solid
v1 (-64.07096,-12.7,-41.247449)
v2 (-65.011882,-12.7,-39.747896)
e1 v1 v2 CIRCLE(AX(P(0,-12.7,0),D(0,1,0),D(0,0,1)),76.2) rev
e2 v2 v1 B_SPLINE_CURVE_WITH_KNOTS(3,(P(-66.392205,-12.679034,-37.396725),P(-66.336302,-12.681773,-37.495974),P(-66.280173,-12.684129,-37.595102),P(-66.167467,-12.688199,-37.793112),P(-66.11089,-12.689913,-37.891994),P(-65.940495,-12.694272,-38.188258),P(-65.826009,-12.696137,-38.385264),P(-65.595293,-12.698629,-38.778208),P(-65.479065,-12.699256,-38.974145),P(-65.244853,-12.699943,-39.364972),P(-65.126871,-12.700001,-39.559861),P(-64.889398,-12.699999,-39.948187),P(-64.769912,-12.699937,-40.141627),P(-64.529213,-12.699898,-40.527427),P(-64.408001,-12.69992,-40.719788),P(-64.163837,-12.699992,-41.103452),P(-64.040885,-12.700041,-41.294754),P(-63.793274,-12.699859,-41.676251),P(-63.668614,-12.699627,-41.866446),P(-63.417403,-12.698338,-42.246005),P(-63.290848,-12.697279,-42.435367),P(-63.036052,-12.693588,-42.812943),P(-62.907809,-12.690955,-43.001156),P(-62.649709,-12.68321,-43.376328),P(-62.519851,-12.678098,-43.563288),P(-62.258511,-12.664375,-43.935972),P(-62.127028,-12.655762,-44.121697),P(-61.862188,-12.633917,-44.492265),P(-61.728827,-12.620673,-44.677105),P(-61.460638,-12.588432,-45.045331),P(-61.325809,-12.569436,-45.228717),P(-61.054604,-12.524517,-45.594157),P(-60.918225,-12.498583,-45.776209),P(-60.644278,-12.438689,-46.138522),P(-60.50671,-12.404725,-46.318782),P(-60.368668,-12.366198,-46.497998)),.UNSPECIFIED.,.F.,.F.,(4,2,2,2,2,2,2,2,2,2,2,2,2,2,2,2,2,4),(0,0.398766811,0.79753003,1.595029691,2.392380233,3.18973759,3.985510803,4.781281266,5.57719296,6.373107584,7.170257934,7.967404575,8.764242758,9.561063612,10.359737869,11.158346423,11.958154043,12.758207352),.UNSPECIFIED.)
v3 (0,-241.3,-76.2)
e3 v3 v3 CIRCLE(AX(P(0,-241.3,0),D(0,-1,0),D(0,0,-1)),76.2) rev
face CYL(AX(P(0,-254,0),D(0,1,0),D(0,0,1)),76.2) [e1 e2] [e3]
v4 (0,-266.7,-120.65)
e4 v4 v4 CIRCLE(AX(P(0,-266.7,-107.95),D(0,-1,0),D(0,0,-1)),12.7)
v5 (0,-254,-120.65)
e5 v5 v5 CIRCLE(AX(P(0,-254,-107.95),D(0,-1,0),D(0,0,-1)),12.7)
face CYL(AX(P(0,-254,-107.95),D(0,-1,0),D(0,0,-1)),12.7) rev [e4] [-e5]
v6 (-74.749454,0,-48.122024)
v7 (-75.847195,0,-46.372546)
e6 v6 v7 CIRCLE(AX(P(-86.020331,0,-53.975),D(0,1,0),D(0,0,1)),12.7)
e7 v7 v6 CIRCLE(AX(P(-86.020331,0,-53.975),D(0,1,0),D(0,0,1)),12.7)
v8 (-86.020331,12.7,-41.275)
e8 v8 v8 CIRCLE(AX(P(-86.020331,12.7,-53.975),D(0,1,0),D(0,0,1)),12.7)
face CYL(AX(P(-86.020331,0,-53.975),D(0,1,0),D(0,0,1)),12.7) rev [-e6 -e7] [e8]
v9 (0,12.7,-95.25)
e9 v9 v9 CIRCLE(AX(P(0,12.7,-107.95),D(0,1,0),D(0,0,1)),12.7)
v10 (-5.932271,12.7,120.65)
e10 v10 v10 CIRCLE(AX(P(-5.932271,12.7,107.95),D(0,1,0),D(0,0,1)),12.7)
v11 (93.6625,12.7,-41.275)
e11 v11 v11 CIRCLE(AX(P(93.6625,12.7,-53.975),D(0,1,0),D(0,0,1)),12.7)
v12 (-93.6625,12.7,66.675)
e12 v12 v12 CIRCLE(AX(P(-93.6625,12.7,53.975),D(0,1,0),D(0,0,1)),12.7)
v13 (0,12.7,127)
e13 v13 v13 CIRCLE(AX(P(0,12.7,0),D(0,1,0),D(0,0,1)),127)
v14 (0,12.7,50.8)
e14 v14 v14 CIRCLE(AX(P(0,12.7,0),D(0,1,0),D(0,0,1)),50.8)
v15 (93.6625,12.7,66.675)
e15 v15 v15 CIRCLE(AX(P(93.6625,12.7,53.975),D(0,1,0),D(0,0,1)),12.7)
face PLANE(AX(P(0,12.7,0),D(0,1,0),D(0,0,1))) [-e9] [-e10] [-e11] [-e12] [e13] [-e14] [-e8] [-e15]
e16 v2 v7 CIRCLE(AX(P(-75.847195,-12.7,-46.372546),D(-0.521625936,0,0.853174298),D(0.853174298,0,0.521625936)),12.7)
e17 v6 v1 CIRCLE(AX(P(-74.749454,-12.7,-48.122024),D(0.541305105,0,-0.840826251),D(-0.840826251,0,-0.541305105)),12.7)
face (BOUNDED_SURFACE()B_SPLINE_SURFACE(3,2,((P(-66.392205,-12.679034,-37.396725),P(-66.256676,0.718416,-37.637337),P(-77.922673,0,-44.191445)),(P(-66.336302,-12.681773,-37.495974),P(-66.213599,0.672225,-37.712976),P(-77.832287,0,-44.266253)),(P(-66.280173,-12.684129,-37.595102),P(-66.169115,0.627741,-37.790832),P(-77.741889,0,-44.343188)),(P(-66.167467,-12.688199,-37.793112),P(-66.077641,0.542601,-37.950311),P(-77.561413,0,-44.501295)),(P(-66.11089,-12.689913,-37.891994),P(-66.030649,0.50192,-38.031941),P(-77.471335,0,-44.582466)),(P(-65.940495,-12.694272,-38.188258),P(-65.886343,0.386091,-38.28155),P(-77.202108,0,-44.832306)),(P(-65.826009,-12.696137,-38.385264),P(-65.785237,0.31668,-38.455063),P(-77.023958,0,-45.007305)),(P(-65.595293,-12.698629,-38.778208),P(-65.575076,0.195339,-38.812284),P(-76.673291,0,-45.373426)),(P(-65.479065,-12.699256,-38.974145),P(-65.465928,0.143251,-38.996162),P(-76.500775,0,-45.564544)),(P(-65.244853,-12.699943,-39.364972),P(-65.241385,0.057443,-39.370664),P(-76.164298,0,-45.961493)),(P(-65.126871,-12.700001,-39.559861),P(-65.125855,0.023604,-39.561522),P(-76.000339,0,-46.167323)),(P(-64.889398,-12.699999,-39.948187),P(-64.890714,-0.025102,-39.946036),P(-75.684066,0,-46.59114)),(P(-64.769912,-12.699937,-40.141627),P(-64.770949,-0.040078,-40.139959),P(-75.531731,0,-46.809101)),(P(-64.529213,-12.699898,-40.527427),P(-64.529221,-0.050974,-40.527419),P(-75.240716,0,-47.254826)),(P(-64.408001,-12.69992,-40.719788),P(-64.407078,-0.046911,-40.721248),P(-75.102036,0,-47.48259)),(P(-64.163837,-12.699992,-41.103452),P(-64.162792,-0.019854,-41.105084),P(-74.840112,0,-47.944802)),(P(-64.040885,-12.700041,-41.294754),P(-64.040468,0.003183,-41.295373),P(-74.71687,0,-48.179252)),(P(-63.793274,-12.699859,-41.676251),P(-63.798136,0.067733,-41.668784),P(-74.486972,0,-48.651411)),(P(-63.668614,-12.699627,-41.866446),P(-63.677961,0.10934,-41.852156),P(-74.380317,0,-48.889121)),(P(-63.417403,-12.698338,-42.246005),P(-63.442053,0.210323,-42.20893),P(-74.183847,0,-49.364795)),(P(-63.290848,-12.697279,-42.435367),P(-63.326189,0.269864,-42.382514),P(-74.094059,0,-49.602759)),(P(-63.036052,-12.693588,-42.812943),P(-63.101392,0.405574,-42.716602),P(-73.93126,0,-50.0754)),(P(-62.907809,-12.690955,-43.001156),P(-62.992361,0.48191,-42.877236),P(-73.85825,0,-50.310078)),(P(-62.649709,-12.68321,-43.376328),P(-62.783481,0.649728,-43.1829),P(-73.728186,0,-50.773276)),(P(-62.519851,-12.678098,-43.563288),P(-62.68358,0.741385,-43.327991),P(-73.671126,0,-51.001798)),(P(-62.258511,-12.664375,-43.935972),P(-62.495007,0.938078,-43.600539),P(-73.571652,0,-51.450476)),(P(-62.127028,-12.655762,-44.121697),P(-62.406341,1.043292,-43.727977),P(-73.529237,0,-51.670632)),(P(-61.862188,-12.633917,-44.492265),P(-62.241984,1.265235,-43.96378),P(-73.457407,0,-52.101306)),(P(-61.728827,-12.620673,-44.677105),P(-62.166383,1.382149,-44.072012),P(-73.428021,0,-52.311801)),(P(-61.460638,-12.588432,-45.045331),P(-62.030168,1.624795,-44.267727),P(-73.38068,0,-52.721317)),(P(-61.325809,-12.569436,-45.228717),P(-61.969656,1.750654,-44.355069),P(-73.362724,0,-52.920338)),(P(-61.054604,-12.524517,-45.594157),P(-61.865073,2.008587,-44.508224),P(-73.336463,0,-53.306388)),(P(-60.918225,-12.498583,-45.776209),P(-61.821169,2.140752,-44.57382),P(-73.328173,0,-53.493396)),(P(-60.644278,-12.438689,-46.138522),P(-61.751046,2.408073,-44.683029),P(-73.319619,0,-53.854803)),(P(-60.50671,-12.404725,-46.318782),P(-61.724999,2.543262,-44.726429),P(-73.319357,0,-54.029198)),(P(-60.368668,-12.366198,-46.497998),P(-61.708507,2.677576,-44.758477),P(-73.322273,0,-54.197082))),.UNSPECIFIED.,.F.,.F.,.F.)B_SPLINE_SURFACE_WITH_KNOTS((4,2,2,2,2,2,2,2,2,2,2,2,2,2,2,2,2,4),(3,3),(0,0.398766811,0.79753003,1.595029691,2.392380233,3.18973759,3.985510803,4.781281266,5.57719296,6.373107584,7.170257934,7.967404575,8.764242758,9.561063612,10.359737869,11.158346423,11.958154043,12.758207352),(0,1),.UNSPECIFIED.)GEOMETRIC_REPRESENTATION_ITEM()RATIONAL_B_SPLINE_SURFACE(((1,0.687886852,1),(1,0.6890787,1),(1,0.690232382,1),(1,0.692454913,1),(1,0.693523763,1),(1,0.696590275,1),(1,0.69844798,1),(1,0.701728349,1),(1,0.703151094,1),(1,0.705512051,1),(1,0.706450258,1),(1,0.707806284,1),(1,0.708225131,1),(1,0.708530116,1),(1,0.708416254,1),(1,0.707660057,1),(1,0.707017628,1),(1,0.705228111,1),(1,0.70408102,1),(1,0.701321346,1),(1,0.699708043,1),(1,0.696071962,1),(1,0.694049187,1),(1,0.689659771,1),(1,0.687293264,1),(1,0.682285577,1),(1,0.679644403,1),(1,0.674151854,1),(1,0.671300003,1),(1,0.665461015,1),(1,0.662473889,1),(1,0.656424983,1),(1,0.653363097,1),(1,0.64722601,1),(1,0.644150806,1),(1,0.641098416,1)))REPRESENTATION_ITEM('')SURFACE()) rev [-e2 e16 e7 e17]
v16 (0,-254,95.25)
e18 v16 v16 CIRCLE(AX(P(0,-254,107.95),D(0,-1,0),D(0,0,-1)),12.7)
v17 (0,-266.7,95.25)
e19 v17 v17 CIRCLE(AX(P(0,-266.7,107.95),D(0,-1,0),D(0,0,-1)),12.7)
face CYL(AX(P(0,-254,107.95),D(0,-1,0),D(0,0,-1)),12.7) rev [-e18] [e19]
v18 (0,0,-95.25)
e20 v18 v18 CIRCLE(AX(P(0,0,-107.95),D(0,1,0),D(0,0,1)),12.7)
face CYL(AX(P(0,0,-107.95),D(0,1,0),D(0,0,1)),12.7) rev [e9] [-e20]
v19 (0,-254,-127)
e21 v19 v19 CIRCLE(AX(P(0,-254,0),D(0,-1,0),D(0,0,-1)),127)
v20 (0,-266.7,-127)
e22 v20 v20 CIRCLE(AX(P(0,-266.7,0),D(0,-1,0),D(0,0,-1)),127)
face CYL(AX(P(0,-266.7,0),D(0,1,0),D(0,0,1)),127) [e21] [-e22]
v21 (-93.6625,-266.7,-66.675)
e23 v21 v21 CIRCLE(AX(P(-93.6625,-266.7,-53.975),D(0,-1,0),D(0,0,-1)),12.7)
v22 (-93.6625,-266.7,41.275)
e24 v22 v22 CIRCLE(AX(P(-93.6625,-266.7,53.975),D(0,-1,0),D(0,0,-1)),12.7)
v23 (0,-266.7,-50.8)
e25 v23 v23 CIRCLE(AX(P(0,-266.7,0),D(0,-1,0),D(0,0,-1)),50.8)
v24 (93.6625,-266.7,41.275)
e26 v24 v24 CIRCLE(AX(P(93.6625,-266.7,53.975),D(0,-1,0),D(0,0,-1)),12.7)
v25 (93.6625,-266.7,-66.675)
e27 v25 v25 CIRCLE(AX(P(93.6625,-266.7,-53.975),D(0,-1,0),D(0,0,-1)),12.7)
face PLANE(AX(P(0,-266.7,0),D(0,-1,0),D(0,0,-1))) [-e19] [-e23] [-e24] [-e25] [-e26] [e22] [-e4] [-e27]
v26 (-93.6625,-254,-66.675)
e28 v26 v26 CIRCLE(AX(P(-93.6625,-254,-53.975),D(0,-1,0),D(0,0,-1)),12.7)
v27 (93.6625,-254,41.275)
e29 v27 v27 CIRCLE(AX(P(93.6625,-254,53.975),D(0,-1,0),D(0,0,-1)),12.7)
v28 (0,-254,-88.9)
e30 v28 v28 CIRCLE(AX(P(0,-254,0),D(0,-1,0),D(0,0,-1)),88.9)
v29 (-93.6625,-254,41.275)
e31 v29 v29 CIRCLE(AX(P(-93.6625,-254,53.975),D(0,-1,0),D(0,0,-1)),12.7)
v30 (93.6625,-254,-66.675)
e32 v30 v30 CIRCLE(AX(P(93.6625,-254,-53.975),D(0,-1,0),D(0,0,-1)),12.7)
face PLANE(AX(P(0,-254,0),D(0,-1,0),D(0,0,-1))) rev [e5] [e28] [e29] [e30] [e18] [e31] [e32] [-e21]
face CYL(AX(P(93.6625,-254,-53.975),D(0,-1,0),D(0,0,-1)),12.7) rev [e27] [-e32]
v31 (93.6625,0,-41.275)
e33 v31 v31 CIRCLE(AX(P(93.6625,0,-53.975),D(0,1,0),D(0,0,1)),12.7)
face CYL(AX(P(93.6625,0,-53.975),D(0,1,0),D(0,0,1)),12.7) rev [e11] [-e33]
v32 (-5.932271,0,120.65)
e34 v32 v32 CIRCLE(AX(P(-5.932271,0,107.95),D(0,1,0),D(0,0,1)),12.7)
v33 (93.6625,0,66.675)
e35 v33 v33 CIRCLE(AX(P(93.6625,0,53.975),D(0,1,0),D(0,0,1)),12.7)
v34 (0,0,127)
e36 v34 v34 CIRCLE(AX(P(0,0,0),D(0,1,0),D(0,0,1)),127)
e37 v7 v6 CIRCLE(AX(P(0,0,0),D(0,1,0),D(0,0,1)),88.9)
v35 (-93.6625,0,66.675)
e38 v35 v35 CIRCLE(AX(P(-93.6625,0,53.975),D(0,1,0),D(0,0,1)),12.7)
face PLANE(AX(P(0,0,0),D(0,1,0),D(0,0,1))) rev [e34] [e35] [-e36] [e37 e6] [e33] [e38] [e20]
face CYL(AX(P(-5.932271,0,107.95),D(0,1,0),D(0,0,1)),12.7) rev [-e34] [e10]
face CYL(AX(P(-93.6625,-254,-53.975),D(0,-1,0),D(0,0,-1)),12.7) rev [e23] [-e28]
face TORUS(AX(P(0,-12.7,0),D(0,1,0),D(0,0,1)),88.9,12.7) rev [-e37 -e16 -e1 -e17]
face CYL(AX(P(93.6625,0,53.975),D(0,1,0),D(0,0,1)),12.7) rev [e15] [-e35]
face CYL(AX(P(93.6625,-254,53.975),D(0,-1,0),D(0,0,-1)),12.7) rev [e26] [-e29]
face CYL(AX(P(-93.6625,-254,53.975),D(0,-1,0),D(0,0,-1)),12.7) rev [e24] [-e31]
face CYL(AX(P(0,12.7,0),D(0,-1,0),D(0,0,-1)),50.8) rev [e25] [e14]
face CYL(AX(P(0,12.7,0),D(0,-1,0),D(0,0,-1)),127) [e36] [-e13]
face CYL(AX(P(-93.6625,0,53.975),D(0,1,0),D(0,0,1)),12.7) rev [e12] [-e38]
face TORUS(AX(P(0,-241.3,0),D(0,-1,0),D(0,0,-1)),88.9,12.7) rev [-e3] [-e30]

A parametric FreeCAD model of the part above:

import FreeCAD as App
import Part
import Sketcher
from FreeCAD import Vector
Q = App.Units.Quantity


def edges_at(feature, points):
    """Names of the edges that pass closest to the given points."""
    edges = feature.Shape.Edges
    near = lambda p: min(range(len(edges)), key=lambda i: edges[i].distToShape(Part.Vertex(*p))[0])
    return sorted({f"Edge{near(p) + 1}" for p in points})

doc = App.newDocument("Part")
body = doc.addObject("PartDesign::Body", "Body")

# Sketch on XZ plane
sketch1 = body.newObject("Sketcher::SketchObject", "Sketch")
sketch1.AttachmentSupport = (doc.getObject("XZ_Plane"), [""])
sketch1.MapMode = "FlatFace"
sketch1.addGeometry([
    Part.Circle(Vector(0, 0, 0), Vector(0, 0, 1), 127),
    Part.Circle(Vector(0, 0, 0), Vector(0, 0, 1), 51),
], False)
sketch1.addConstraint([
    Sketcher.Constraint("Coincident", 0, 3, -1, 1),
    Sketcher.Constraint("Coincident", 1, 3, -1, 1),
    Sketcher.Constraint("Diameter", 0, Q("10 in")),
    Sketcher.Constraint("Diameter", 1, Q("4 in")),
])
pad1 = body.newObject("PartDesign::Pad", "Pad")
pad1.Profile = sketch1
pad1.Length = Q("0.5 in")
pad1.Reversed = True

# Sketch on XZ plane
sketch2 = body.newObject("Sketcher::SketchObject", "Sketch001")
sketch2.AttachmentSupport = (doc.getObject("XZ_Plane"), [""])
sketch2.MapMode = "FlatFace"
sketch2.AttachmentOffset = App.Placement(Vector(0, 0, -0.5 * 25.4), App.Rotation())
sketch2.addGeometry([
    Part.Circle(Vector(0, -108, 0), Vector(0, 0, 1), 13),  # 0
    Part.Circle(Vector(-6, 108, 0), Vector(0, 0, 1), 13),  # 1
    Part.Circle(Vector(-86, -54, 0), Vector(0, 0, 1), 13),  # 2
    Part.Circle(Vector(-94, 54, 0), Vector(0, 0, 1), 13),  # 3
    Part.Circle(Vector(94, 54, 0), Vector(0, 0, 1), 13),  # 4
    Part.Circle(Vector(94, -54, 0), Vector(0, 0, 1), 13),  # 5
], False)
sketch2.addConstraint([
    Sketcher.Constraint("Equal", 0, 1),
    Sketcher.Constraint("Equal", 1, 2),
    Sketcher.Constraint("Equal", 2, 3),
    Sketcher.Constraint("Equal", 3, 4),
    Sketcher.Constraint("Equal", 4, 5),
    Sketcher.Constraint("Symmetric", 3, 3, 5, 3, -1, 1),
    Sketcher.Constraint("Symmetric", 3, 3, 4, 3, -2),
    Sketcher.Constraint("PointOnObject", 0, 3, -2),
    Sketcher.Constraint("Horizontal", 2, 3, 5, 3),
    Sketcher.Constraint("Diameter", 0, Q("1 in")),
    Sketcher.Constraint("DistanceY", 0, 3, 1, 3, Q("8.5 in")),
    Sketcher.Constraint("DistanceY", 0, 3, -1, 1, Q("4.25 in")),
    Sketcher.Constraint("DistanceY", 2, 3, 3, 3, Q("4.25 in")),
    Sketcher.Constraint("DistanceX", 3, 3, -1, 1, Q("3.6875 in")),
    Sketcher.Constraint("DistanceX", 1, 3, -1, 1, Q("5.932271 mm")),
    Sketcher.Constraint("DistanceX", 2, 3, -1, 1, Q("86.020331 mm")),
])
pocket1 = body.newObject("PartDesign::Pocket", "Pocket")
pocket1.Profile = sketch2
pocket1.Length = Q("0.5 in")
pocket1.Reversed = True

# Sketch on XZ plane
sketch3 = body.newObject("Sketcher::SketchObject", "Sketch002")
sketch3.AttachmentSupport = (doc.getObject("XZ_Plane"), [""])
sketch3.MapMode = "FlatFace"
sketch3.addGeometry(Part.Circle(Vector(0, 0, 0), Vector(0, 0, 1), 76), False)
sketch3.addConstraint([
    Sketcher.Constraint("Coincident", 0, 3, -1, 1),
    Sketcher.Constraint("Diameter", 0, Q("6 in")),
])
pad2 = body.newObject("PartDesign::Pad", "Pad001")
pad2.Profile = sketch3
pad2.Length = Q("10 in")
doc.recompute()

fillet = body.newObject("PartDesign::Fillet", "Fillet")
fillet.Base = (pad2, edges_at(pad2, [(0, 0, -76.2)]))
fillet.Radius = Q("0.5 in")

# Sketch on XZ plane
sketch4 = body.newObject("Sketcher::SketchObject", "Sketch003")
sketch4.AttachmentSupport = (doc.getObject("XZ_Plane"), [""])
sketch4.MapMode = "FlatFace"
sketch4.AttachmentOffset = App.Placement(Vector(0, 0, 10 * 25.4), App.Rotation())
sketch4.addGeometry(Part.Circle(Vector(0, 0, 0), Vector(0, 0, 1), 51), False)
sketch4.addConstraint([
    Sketcher.Constraint("Coincident", 0, 3, -1, 1),
    Sketcher.Constraint("Diameter", 0, Q("4 in")),
])
pocket2 = body.newObject("PartDesign::Pocket", "Pocket001")
pocket2.Profile = sketch4
pocket2.Length = Q("10 in")

# Sketch on XZ plane
sketch5 = body.newObject("Sketcher::SketchObject", "Sketch004")
sketch5.AttachmentSupport = (doc.getObject("XZ_Plane"), [""])
sketch5.MapMode = "FlatFace"
sketch5.AttachmentOffset = App.Placement(Vector(0, 0, 10.5 * 25.4), App.Rotation())
sketch5.addGeometry(Part.Circle(Vector(0, 0, 0), Vector(0, 0, 1), 127), False)
sketch5.addConstraint([
    Sketcher.Constraint("Coincident", 0, 3, -1, 1),
    Sketcher.Constraint("Diameter", 0, Q("10 in")),
])
pad3 = body.newObject("PartDesign::Pad", "Pad002")
pad3.Profile = sketch5
pad3.Length = Q("0.5 in")
pad3.Reversed = True

# Sketch on XZ plane
sketch6 = body.newObject("Sketcher::SketchObject", "Sketch005")
sketch6.AttachmentSupport = (doc.getObject("XZ_Plane"), [""])
sketch6.MapMode = "FlatFace"
sketch6.AttachmentOffset = App.Placement(Vector(0, 0, 10.5 * 25.4), App.Rotation())
sketch6.addGeometry(Part.Circle(Vector(0, 0, 0), Vector(0, 0, 1), 51), False)
sketch6.addConstraint([
    Sketcher.Constraint("Coincident", 0, 3, -1, 1),
    Sketcher.Constraint("Diameter", 0, Q("4 in")),
])
pocket3 = body.newObject("PartDesign::Pocket", "Pocket002")
pocket3.Profile = sketch6
pocket3.Length = Q("0.5 in")

# Sketch on XZ plane
sketch7 = body.newObject("Sketcher::SketchObject", "Sketch006")
sketch7.AttachmentSupport = (doc.getObject("XZ_Plane"), [""])
sketch7.MapMode = "FlatFace"
sketch7.AttachmentOffset = App.Placement(Vector(0, 0, 10 * 25.4), App.Rotation())
sketch7.addGeometry([
    Part.Circle(Vector(0, 108, 0), Vector(0, 0, 1), 13),  # 0
    Part.Circle(Vector(0, -108, 0), Vector(0, 0, 1), 13),  # 1
    Part.Circle(Vector(94, -54, 0), Vector(0, 0, 1), 13),  # 2
    Part.Circle(Vector(94, 54, 0), Vector(0, 0, 1), 13),  # 3
    Part.Circle(Vector(-94, 54, 0), Vector(0, 0, 1), 13),  # 4
    Part.Circle(Vector(-94, -54, 0), Vector(0, 0, 1), 13),  # 5
], False)
sketch7.addConstraint([
    Sketcher.Constraint("Equal", 0, 1),
    Sketcher.Constraint("Equal", 1, 2),
    Sketcher.Constraint("Equal", 2, 3),
    Sketcher.Constraint("Equal", 3, 4),
    Sketcher.Constraint("Equal", 4, 5),
    Sketcher.Constraint("Symmetric", 0, 3, 1, 3, -1, 1),
    Sketcher.Constraint("Symmetric", 2, 3, 4, 3, -1, 1),
    Sketcher.Constraint("Symmetric", 3, 3, 5, 3, -1, 1),
    Sketcher.Constraint("Symmetric", 3, 3, 4, 3, -2),
    Sketcher.Constraint("PointOnObject", 0, 3, -2),
    Sketcher.Constraint("Diameter", 0, Q("1 in")),
    Sketcher.Constraint("DistanceY", 1, 3, 0, 3, Q("8.5 in")),
    Sketcher.Constraint("DistanceY", 2, 3, 3, 3, Q("4.25 in")),
    Sketcher.Constraint("DistanceX", -1, 1, 2, 3, Q("3.6875 in")),
])
pocket4 = body.newObject("PartDesign::Pocket", "Pocket003")
pocket4.Profile = sketch7
pocket4.Length = Q("0.5 in")
pocket4.Reversed = True
doc.recompute()

fillet2 = body.newObject("PartDesign::Fillet", "Fillet001")
fillet2.Base = (pocket4, edges_at(pocket4, [(0, -254, -76.2)]))
fillet2.Radius = Q("0.5 in")

doc.recompute()
